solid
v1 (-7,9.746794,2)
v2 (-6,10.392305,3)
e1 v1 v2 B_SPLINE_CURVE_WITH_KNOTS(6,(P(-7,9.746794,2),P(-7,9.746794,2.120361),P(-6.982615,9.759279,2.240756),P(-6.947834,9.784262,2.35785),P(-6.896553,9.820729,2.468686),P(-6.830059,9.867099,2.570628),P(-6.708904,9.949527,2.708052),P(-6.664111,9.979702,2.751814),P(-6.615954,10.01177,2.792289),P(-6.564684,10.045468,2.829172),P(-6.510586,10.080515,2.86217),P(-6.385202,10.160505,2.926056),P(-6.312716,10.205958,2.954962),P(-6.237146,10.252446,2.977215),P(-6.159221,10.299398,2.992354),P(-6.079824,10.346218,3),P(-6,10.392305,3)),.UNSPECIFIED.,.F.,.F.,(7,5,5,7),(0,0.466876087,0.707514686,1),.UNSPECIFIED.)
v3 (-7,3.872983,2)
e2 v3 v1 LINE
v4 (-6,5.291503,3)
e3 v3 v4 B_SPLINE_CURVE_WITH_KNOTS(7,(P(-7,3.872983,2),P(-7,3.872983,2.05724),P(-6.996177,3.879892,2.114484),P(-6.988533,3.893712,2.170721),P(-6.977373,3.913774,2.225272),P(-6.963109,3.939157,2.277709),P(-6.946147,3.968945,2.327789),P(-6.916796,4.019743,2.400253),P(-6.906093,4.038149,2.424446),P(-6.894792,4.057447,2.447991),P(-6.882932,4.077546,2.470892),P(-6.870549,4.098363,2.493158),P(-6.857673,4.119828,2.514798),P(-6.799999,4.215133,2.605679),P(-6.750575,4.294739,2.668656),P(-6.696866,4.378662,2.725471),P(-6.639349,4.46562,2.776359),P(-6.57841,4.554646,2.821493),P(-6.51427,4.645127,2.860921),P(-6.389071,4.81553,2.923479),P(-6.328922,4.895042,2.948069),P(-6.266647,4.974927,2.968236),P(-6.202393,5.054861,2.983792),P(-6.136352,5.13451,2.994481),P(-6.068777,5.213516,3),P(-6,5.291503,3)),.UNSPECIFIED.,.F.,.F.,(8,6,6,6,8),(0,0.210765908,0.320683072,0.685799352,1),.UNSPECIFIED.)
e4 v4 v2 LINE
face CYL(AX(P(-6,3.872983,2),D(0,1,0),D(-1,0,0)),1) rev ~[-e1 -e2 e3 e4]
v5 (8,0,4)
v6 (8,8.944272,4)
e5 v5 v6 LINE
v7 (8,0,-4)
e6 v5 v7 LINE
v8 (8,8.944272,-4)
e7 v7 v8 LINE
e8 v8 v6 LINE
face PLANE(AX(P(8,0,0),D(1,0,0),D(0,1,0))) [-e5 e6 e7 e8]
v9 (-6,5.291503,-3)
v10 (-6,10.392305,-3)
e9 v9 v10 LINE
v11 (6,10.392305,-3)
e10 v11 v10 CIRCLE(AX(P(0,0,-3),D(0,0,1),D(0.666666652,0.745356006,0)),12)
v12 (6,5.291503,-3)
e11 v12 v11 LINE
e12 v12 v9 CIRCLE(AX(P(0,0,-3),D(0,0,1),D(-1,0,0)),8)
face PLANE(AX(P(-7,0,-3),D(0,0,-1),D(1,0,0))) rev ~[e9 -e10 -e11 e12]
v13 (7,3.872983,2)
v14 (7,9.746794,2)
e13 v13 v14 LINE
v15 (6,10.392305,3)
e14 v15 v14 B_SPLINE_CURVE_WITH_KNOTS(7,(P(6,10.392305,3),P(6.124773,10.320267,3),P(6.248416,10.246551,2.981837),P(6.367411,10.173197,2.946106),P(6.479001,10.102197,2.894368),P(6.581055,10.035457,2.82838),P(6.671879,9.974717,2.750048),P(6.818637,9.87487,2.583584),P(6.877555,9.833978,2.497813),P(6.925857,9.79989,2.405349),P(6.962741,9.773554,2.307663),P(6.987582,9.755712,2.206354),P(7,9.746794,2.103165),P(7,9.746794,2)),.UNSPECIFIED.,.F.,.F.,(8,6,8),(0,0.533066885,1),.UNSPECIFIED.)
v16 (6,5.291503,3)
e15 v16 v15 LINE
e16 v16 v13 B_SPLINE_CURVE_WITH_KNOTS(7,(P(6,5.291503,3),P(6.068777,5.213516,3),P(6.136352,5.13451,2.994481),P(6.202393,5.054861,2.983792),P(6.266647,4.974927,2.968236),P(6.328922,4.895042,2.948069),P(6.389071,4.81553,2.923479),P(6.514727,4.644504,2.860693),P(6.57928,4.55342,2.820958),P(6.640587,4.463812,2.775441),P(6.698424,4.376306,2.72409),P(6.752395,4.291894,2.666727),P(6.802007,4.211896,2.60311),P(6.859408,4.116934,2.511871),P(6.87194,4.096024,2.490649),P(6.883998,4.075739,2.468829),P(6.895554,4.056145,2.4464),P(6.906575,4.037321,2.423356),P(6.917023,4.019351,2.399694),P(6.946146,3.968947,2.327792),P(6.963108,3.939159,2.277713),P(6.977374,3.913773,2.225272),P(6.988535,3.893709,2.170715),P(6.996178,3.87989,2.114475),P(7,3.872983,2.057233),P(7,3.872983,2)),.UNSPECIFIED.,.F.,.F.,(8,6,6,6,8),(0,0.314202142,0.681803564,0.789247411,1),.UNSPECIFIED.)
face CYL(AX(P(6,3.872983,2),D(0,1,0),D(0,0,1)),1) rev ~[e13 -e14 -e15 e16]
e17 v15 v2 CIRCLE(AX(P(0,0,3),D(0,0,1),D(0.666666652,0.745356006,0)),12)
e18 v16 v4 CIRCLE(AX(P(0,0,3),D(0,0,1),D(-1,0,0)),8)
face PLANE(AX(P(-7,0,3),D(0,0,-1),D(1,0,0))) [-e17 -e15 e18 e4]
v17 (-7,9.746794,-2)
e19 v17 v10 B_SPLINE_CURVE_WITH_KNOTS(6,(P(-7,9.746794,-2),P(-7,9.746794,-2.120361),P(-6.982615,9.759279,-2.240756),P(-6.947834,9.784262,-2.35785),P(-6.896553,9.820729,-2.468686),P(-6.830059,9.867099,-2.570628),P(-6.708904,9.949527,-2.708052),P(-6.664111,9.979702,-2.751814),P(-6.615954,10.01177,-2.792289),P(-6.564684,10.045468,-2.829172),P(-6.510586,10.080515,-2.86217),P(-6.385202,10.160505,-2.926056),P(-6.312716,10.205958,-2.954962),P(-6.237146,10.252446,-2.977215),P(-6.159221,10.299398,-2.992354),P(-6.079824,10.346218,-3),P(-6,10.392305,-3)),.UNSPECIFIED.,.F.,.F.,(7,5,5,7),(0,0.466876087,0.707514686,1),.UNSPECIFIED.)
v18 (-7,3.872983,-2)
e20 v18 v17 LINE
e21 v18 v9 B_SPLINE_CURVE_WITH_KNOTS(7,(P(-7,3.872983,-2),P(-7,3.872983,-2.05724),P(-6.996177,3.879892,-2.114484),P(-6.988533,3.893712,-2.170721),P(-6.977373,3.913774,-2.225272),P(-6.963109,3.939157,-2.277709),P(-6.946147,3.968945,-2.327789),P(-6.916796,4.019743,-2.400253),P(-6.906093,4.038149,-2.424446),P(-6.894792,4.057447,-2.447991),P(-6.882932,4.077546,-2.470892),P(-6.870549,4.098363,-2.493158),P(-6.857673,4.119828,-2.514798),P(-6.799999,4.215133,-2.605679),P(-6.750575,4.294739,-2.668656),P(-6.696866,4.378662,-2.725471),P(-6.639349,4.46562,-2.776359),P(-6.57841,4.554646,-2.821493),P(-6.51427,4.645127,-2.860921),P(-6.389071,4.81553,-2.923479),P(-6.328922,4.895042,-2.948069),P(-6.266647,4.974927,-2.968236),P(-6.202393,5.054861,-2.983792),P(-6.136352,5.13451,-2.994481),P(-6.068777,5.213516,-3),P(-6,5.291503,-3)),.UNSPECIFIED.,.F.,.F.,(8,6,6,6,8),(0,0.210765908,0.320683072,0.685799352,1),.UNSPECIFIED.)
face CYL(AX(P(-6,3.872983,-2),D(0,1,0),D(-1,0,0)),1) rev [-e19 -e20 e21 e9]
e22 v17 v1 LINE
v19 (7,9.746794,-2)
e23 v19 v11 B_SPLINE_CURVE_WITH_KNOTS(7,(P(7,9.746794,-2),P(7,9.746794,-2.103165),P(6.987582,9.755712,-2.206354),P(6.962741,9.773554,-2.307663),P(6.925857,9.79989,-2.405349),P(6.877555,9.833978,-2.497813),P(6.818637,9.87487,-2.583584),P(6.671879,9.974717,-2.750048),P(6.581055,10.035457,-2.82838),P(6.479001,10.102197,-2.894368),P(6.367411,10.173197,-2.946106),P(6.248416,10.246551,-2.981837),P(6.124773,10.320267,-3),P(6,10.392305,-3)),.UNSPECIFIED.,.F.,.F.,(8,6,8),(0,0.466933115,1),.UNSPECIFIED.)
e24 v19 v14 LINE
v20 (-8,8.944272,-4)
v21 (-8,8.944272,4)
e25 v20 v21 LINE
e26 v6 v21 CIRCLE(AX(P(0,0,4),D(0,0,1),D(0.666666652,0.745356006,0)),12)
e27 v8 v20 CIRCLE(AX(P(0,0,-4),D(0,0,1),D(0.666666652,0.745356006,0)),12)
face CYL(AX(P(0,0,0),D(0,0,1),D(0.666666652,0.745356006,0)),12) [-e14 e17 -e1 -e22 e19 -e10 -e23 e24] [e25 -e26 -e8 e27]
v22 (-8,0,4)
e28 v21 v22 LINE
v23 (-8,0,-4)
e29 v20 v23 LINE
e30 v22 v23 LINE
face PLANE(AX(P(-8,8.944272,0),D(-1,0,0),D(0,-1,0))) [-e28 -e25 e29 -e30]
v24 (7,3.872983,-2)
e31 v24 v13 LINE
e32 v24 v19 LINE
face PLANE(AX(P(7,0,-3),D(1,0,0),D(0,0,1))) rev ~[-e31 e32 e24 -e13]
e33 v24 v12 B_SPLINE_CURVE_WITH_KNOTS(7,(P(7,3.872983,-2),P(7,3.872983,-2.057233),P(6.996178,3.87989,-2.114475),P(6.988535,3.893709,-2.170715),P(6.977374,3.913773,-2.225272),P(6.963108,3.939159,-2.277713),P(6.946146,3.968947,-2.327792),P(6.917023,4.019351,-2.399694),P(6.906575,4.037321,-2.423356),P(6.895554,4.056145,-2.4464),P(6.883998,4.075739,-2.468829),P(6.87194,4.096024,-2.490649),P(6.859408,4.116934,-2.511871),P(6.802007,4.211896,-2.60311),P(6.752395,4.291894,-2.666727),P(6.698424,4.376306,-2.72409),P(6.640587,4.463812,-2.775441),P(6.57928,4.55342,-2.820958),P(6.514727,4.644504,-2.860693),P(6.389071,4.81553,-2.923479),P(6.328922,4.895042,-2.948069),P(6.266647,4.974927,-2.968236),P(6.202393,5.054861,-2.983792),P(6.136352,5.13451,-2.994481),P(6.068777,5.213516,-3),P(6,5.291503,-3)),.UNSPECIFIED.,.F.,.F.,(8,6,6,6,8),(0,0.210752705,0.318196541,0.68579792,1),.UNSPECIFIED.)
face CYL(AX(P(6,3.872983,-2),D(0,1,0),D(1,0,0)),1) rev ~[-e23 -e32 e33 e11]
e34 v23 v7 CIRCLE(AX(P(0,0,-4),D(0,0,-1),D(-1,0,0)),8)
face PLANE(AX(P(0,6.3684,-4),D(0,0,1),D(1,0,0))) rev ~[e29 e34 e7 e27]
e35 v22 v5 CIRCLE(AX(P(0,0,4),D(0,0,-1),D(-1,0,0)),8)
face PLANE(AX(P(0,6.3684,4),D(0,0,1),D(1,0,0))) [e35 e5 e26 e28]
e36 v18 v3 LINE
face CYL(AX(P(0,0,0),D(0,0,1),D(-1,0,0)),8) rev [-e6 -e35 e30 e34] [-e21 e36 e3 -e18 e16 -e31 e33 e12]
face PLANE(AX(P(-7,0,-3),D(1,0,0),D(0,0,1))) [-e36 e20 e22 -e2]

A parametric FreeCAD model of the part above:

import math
import FreeCAD as App
import Part
import Sketcher
from FreeCAD import Vector
Q = App.Units.Quantity


def edges_at(feature, points):
    """Names of the edges that pass closest to the given points."""
    edges = feature.Shape.Edges
    near = lambda p: min(range(len(edges)), key=lambda i: edges[i].distToShape(Part.Vertex(*p))[0])
    return sorted({f"Edge{near(p) + 1}" for p in points})

doc = App.newDocument("Part")
body = doc.addObject("PartDesign::Body", "Body")

# Sketch on XY plane
sketch1 = body.newObject("Sketcher::SketchObject", "Sketch")
sketch1.AttachmentSupport = (doc.getObject("XY_Plane"), [""])
sketch1.MapMode = "FlatFace"
sketch1.addGeometry([
    Part.LineSegment(Vector(8, 0, 0), Vector(8, 8.944272, 0)),
    Part.ArcOfCircle(Part.Circle(Vector(0, 0, 0), Vector(0, 0, 1), 12), math.radians(48.189686), math.radians(131.810314)),
    Part.LineSegment(Vector(-8, 8.944272, 0), Vector(-8, 0, 0)),
    Part.ArcOfCircle(Part.Circle(Vector(0, 0, 0), Vector(0, 0, 1), 8), math.radians(0), math.radians(180)),
], False)
sketch1.addConstraint([
    Sketcher.Constraint("Coincident", 0, 2, 1, 1),
    Sketcher.Constraint("Coincident", 1, 2, 2, 1),
    Sketcher.Constraint("Tangent", 2, 2, 3, 2),
    Sketcher.Constraint("Tangent", 3, 1, 0, 1),
    Sketcher.Constraint("Vertical", 0),
    Sketcher.Constraint("Vertical", 2),
    Sketcher.Constraint("Coincident", 1, 3, -1, 1),
    Sketcher.Constraint("Coincident", 3, 3, -1, 1),
    Sketcher.Constraint("Radius", 1, Q("12 mm")),
    Sketcher.Constraint("Radius", 3, Q("8 mm")),
])
pad1 = body.newObject("PartDesign::Pad", "Pad")
pad1.Profile = sketch1
pad1.Type = "TwoLengths"
pad1.Length = 4
pad1.Length2 = 4

# Sketch on XZ plane
sketch2 = body.newObject("Sketcher::SketchObject", "Sketch001")
sketch2.AttachmentSupport = (doc.getObject("XZ_Plane"), [""])
sketch2.MapMode = "FlatFace"
sketch2.addGeometry([
    Part.LineSegment(Vector(-7, 3, 0), Vector(-7, -3, 0)),
    Part.LineSegment(Vector(-7, -3, 0), Vector(7, -3, 0)),
    Part.LineSegment(Vector(7, -3, 0), Vector(7, 3, 0)),
    Part.LineSegment(Vector(7, 3, 0), Vector(-7, 3, 0)),
], False)
sketch2.addConstraint([
    Sketcher.Constraint("Coincident", 0, 2, 1, 1),
    Sketcher.Constraint("Coincident", 1, 2, 2, 1),
    Sketcher.Constraint("Coincident", 2, 2, 3, 1),
    Sketcher.Constraint("Coincident", 3, 2, 0, 1),
    Sketcher.Constraint("Vertical", 0),
    Sketcher.Constraint("Horizontal", 1),
    Sketcher.Constraint("Vertical", 2),
    Sketcher.Constraint("Horizontal", 3),
    Sketcher.Constraint("Symmetric", 0, 2, 2, 2, -1, 1),
    Sketcher.Constraint("DistanceX", 1, 1, 1, 2, Q("14 mm")),
    Sketcher.Constraint("DistanceY", 0, 2, 0, 1, Q("6 mm")),
])
pocket1 = body.newObject("PartDesign::Pocket", "Pocket")
pocket1.Profile = sketch2
pocket1.Length = 25
doc.recompute()

fillet = body.newObject("PartDesign::Fillet", "Fillet")
fillet.Base = (pocket1, edges_at(pocket1, [
    (-7, 6.81, 3),
    (-7, 6.81, -3),
    (7, 6.81, -3),
    (7, 6.81, 3),
]))
fillet.Radius = 1

doc.recompute()
